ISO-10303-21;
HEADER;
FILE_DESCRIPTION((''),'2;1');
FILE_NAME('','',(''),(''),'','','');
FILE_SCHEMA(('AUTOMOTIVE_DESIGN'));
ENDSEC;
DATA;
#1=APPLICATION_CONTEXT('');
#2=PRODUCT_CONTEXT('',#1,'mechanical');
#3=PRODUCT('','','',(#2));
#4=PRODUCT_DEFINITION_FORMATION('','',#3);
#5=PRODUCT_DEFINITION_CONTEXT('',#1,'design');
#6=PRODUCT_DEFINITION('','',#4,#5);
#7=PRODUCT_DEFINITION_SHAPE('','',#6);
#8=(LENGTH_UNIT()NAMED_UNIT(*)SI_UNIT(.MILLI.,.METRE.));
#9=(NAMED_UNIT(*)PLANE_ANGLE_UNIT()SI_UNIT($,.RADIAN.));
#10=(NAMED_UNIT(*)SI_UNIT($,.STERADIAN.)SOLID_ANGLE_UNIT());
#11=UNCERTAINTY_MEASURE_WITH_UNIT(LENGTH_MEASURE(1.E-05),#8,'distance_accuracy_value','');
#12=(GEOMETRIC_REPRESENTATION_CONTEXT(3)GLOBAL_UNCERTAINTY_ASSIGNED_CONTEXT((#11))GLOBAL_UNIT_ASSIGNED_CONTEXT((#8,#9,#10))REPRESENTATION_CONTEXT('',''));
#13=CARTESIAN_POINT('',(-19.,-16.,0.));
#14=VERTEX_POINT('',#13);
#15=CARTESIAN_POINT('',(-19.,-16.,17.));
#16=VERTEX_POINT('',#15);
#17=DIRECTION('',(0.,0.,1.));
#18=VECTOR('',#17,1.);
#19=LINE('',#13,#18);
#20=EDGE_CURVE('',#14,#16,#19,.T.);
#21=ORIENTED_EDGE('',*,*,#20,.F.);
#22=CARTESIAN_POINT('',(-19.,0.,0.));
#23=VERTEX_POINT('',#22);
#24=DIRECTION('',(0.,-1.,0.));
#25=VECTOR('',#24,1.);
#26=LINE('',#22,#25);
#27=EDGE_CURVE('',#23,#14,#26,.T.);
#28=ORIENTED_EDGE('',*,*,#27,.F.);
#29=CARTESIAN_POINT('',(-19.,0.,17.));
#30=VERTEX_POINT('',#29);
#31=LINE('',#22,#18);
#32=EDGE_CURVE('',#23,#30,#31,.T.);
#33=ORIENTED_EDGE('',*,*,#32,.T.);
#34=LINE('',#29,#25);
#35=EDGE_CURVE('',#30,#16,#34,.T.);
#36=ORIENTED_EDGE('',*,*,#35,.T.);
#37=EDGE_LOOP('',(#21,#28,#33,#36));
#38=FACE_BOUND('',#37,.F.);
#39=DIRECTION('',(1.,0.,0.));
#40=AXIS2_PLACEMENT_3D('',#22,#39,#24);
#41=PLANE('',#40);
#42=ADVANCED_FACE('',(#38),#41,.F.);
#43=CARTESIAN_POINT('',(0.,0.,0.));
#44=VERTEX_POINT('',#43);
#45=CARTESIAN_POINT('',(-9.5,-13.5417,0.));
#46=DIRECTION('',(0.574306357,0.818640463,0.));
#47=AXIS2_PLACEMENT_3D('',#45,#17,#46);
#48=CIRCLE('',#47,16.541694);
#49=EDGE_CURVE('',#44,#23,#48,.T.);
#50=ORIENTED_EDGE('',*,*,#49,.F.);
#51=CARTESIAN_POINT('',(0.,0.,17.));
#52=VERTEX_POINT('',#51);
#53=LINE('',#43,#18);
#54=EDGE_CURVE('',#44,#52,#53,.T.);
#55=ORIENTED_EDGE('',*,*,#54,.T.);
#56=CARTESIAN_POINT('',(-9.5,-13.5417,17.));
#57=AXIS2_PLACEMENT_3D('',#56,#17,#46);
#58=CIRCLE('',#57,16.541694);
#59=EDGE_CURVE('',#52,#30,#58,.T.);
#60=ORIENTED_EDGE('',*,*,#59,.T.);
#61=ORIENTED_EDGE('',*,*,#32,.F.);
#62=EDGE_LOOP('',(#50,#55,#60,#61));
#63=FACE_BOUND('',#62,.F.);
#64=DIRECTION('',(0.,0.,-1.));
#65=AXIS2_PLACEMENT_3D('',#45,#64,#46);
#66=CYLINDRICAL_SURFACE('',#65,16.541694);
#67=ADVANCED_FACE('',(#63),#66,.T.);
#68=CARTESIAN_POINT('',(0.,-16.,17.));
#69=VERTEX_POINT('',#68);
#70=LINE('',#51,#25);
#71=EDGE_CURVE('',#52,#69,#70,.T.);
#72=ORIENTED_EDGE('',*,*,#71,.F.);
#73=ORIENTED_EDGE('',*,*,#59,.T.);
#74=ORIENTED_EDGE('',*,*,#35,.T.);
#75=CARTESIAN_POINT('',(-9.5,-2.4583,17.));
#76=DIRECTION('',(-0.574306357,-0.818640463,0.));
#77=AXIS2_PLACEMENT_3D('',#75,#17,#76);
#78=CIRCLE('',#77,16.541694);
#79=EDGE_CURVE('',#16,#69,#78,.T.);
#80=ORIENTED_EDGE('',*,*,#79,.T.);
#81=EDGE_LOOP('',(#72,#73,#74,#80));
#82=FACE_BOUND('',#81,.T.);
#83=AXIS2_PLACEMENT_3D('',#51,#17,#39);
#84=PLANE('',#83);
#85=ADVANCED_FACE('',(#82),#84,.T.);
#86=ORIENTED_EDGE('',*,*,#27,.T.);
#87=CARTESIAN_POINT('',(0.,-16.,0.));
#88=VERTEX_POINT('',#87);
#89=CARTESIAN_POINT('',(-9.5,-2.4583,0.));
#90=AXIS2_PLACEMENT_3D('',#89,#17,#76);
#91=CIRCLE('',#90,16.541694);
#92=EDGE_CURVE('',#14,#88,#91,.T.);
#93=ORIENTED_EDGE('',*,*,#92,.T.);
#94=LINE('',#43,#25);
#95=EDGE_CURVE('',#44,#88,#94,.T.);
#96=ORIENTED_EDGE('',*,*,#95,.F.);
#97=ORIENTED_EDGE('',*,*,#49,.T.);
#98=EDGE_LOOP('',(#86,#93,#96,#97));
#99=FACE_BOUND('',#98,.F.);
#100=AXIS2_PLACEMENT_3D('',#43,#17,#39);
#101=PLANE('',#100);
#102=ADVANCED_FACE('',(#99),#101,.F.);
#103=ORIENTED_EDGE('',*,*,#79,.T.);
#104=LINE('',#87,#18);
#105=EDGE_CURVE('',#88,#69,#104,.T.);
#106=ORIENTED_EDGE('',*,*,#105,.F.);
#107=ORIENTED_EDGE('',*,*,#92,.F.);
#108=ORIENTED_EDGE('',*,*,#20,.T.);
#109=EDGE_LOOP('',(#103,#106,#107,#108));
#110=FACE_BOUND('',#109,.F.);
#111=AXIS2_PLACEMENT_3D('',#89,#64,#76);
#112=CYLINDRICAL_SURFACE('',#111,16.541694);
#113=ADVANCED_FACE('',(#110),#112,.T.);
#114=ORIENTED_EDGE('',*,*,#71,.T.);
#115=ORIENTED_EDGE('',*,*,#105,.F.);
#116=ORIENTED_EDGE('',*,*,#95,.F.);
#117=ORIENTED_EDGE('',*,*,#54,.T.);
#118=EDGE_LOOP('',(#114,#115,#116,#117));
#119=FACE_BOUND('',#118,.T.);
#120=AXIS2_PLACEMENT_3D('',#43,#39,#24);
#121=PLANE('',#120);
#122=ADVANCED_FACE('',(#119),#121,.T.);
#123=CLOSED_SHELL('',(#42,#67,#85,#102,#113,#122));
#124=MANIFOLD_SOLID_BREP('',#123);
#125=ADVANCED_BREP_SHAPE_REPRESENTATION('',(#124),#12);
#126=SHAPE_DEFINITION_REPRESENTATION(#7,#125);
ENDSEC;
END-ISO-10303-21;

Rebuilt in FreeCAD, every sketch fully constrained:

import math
import FreeCAD as App
import Part
import Sketcher

doc = App.newDocument("Part")
body = doc.addObject("PartDesign::Body", "Body")

# Sketch on XY plane
sketch1 = doc.addObject("Sketcher::SketchObject", "Sketch")
body.addObject(sketch1)
sketch1.AttachmentSupport = (doc.XY_Plane, [""])
sketch1.MapMode = "FlatFace"
sketch1.addGeometry(Part.LineSegment(App.Vector(0, -16, 0), App.Vector(0, 0, 0)), False)
sketch1.addGeometry(Part.ArcOfCircle(Part.Circle(App.Vector(-9.5, -13.5417, 0), App.Vector(0, 0, 1), 16.541694), math.radians(54.94893), math.radians(125.05107)), False)
sketch1.addGeometry(Part.LineSegment(App.Vector(-19, 0, 0), App.Vector(-19, -16, 0)), False)
sketch1.addGeometry(Part.ArcOfCircle(Part.Circle(App.Vector(-9.5, -2.4583, 0), App.Vector(0, 0, 1), 16.541694), math.radians(-125.05107), math.radians(-54.94893)), False)
sketch1.addConstraint(Sketcher.Constraint("Coincident", 0, 2, 1, 1))
sketch1.addConstraint(Sketcher.Constraint("Coincident", 1, 2, 2, 1))
sketch1.addConstraint(Sketcher.Constraint("Coincident", 2, 2, 3, 1))
sketch1.addConstraint(Sketcher.Constraint("Coincident", 3, 2, 0, 1))
sketch1.addConstraint(Sketcher.Constraint("Vertical", 0))
sketch1.addConstraint(Sketcher.Constraint("Vertical", 2))
sketch1.addConstraint(Sketcher.Constraint("Coincident", 0, 2, -1, 1))
sketch1.addConstraint(Sketcher.Constraint("Equal", 1, 3))
sketch1.addConstraint(Sketcher.Constraint("PointOnObject", 1, 2, -1))
sketch1.addConstraint(Sketcher.Constraint("Horizontal", 2, 2, 3, 2))
sketch1.addConstraint(Sketcher.Constraint("DistanceY", 0, 1, 0, 2, 16.0))
sketch1.addConstraint(Sketcher.Constraint("DistanceX", 1, 2, -1, 1, 19.0))
sketch1.addConstraint(Sketcher.Constraint("Radius", 1, 16.5417))
pad1 = doc.addObject("PartDesign::Pad", "Pad")
body.addObject(pad1)
pad1.Profile = sketch1
pad1.Length = 17

doc.recompute()
